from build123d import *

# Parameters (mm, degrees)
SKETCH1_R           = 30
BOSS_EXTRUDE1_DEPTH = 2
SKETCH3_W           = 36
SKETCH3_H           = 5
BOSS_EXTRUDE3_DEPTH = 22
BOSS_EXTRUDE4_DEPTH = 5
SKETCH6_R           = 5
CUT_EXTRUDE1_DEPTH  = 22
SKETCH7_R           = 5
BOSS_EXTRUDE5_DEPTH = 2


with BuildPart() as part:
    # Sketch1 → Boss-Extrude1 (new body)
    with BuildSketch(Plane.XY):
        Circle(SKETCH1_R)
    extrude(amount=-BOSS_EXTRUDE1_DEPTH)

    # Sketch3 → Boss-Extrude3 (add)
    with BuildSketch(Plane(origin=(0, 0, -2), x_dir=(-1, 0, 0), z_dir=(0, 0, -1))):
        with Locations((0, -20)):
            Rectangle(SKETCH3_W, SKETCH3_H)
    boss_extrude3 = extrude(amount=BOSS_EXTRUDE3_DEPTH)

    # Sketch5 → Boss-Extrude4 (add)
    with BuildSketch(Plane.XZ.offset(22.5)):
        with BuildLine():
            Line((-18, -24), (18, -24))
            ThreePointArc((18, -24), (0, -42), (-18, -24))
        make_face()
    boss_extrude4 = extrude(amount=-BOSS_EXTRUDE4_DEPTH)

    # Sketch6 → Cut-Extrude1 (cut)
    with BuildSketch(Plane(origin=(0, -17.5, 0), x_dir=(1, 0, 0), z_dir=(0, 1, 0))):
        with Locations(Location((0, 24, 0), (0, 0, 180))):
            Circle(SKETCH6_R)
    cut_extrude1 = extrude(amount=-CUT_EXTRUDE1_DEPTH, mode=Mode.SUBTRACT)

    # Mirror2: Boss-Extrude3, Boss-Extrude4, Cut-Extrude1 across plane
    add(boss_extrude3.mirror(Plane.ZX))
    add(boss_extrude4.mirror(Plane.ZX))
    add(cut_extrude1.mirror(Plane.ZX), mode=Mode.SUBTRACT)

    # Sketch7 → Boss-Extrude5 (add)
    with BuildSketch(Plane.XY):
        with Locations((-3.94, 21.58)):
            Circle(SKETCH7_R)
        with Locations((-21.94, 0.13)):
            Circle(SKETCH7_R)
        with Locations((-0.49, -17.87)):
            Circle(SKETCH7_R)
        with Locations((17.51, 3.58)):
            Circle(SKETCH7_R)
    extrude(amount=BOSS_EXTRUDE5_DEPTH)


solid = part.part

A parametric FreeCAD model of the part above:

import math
import FreeCAD as App
import Part
import Sketcher
from FreeCAD import Vector
Q = App.Units.Quantity

doc = App.newDocument("Part")
body = doc.addObject("PartDesign::Body", "Body")

sketch1 = doc.addObject("Sketcher::SketchObject", "Sketch")
body.addObject(sketch1)
sketch1.AttachmentSupport = (doc.XY_Plane, [""])
sketch1.MapMode = "FlatFace"
sketch1.addGeometry(Part.Circle(Vector(0, 0, 0), Vector(0, 0, 1), 30), False)
sketch1.addConstraint([
    Sketcher.Constraint("Coincident", 0, 3, -1, 1),
    Sketcher.Constraint("Diameter", 0, Q("60 mm")),
])
pad1 = doc.addObject("PartDesign::Pad", "Pad")
body.addObject(pad1)
pad1.Profile = sketch1
pad1.Length = 2
pad1.Reversed = True

sketch2 = doc.addObject("Sketcher::SketchObject", "Sketch001")
body.addObject(sketch2)
sketch2.AttachmentSupport = (doc.XY_Plane, [""])
sketch2.MapMode = "FlatFace"
sketch2.AttachmentOffset = App.Placement(Vector(0, 0, -2), App.Rotation())
sketch2.addGeometry([
    Part.LineSegment(Vector(18, -18, 0), Vector(18, -22, 0)),
    Part.LineSegment(Vector(18, -22, 0), Vector(-18, -22, 0)),
    Part.LineSegment(Vector(-18, -22, 0), Vector(-18, -18, 0)),
    Part.LineSegment(Vector(-18, -18, 0), Vector(18, -18, 0)),
], False)
sketch2.addConstraint([
    Sketcher.Constraint("Coincident", 0, 2, 1, 1),
    Sketcher.Constraint("Coincident", 1, 2, 2, 1),
    Sketcher.Constraint("Coincident", 2, 2, 3, 1),
    Sketcher.Constraint("Coincident", 3, 2, 0, 1),
    Sketcher.Constraint("Vertical", 0),
    Sketcher.Constraint("Horizontal", 1),
    Sketcher.Constraint("Vertical", 2),
    Sketcher.Constraint("Horizontal", 3),
    Sketcher.Constraint("DistanceX", 1, 2, 1, 1, Q("36 mm")),
    Sketcher.Constraint("DistanceY", 0, 2, 0, 1, Q("5 mm")),
    Sketcher.Constraint("DistanceX", -1, 1, 0, 2, Q("18 mm")),
    Sketcher.Constraint("DistanceY", 0, 2, -1, 1, Q("22.5 mm")),
])
pad2 = doc.addObject("PartDesign::Pad", "Pad001")
body.addObject(pad2)
pad2.Profile = sketch2
pad2.Length = 22
pad2.Reversed = True

sketch3 = doc.addObject("Sketcher::SketchObject", "Sketch002")
body.addObject(sketch3)
sketch3.AttachmentSupport = (doc.XZ_Plane, [""])
sketch3.MapMode = "FlatFace"
sketch3.AttachmentOffset = App.Placement(Vector(0, 0, 22.5), App.Rotation())
sketch3.addGeometry([
    Part.LineSegment(Vector(18, -24, 0), Vector(-18, -24, 0)),
    Part.ArcOfCircle(Part.Circle(Vector(0, -24, 0), Vector(0, 0, 1), 18), math.radians(180), math.radians(360)),
], False)
sketch3.addConstraint([
    Sketcher.Constraint("Coincident", 0, 1, 1, 2),
    Sketcher.Constraint("Coincident", 1, 1, 0, 2),
    Sketcher.Constraint("Horizontal", 0),
    Sketcher.Constraint("PointOnObject", 1, 3, -2),
    Sketcher.Constraint("Horizontal", 1, 3, 0, 1),
    Sketcher.Constraint("Radius", 1, Q("18 mm")),
    Sketcher.Constraint("DistanceY", 1, 3, -1, 1, Q("24 mm")),
])
pad3 = doc.addObject("PartDesign::Pad", "Pad002")
body.addObject(pad3)
pad3.Profile = sketch3
pad3.Length = 5
pad3.Reversed = True

sketch4 = doc.addObject("Sketcher::SketchObject", "Sketch003")
body.addObject(sketch4)
sketch4.AttachmentSupport = (doc.XZ_Plane, [""])
sketch4.MapMode = "FlatFace"
sketch4.AttachmentOffset = App.Placement(Vector(0, 0, 17.5), App.Rotation())
sketch4.addGeometry(Part.Circle(Vector(0, -24, 0), Vector(0, 0, 1), 5), False)
sketch4.addConstraint([
    Sketcher.Constraint("PointOnObject", 0, 3, -2),
    Sketcher.Constraint("Diameter", 0, Q("10 mm")),
    Sketcher.Constraint("DistanceY", 0, 3, -1, 1, Q("24 mm")),
])
pocket1 = doc.addObject("PartDesign::Pocket", "Pocket")
body.addObject(pocket1)
pocket1.Profile = sketch4
pocket1.Length = 22
pocket1.Reversed = True
doc.recompute()

mirrored = doc.addObject("PartDesign::Mirrored", "Mirrored")
body.addObject(mirrored)
mirrored.Originals = [pad2, pad3, pocket1]
mirrored.MirrorPlane = (doc.XZ_Plane, [""])
body.Tip = mirrored

sketch5 = doc.addObject("Sketcher::SketchObject", "Sketch004")
body.addObject(sketch5)
sketch5.AttachmentSupport = (doc.XY_Plane, [""])
sketch5.MapMode = "FlatFace"
sketch5.addGeometry([
    Part.Circle(Vector(-4, 22, 0), Vector(0, 0, 1), 5),
    Part.Circle(Vector(-22, 0, 0), Vector(0, 0, 1), 5),
    Part.Circle(Vector(0, -18, 0), Vector(0, 0, 1), 5),
    Part.Circle(Vector(18, 4, 0), Vector(0, 0, 1), 5),
], False)
sketch5.addConstraint([
    Sketcher.Constraint("Equal", 0, 1),
    Sketcher.Constraint("Equal", 1, 2),
    Sketcher.Constraint("Equal", 2, 3),
    Sketcher.Constraint("Diameter", 0, Q("10 mm")),
    Sketcher.Constraint("DistanceX", 1, 3, 0, 3, Q("18 mm")),
    Sketcher.Constraint("DistanceY", 2, 3, 1, 3, Q("18 mm")),
    Sketcher.Constraint("DistanceY", 3, 3, 0, 3, Q("18 mm")),
    Sketcher.Constraint("DistanceX", 2, 3, 3, 3, Q("18 mm")),
    Sketcher.Constraint("DistanceX", 0, 3, -1, 1, Q("3.94 mm")),
    Sketcher.Constraint("DistanceY", -1, 1, 0, 3, Q("21.58 mm")),
    Sketcher.Constraint("DistanceY", -1, 1, 1, 3, Q("0.13 mm")),
    Sketcher.Constraint("DistanceX", 2, 3, -1, 1, Q("0.49 mm")),
])
pad4 = doc.addObject("PartDesign::Pad", "Pad003")
body.addObject(pad4)
pad4.Profile = sketch5
pad4.Length = 2

doc.recompute()
